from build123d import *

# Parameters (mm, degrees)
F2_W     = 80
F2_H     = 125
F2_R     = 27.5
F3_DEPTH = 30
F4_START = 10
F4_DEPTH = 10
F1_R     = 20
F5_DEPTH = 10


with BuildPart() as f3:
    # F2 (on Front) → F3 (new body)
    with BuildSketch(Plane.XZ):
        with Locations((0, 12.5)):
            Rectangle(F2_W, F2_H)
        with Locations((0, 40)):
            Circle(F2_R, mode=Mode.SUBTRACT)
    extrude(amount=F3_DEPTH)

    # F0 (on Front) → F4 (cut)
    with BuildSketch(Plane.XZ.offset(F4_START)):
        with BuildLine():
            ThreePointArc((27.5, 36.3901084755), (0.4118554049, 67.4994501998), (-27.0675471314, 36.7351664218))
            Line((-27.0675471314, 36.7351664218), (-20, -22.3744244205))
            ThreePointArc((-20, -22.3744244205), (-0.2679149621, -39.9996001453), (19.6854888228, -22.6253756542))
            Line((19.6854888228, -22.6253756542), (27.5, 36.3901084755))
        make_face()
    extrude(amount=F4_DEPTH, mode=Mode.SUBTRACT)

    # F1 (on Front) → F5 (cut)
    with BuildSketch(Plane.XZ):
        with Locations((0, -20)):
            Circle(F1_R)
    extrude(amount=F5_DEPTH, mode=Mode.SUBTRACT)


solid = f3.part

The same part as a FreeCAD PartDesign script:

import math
import FreeCAD as App
import Part
import Sketcher

V = App.Vector
Q = App.Units.Quantity

doc = App.newDocument("Part")
body = doc.addObject("PartDesign::Body", "Body")

# Sketch on XZ plane
sketch1 = doc.addObject("Sketcher::SketchObject", "Sketch")
body.addObject(sketch1)
sketch1.AttachmentSupport = (doc.XZ_Plane, [""])
sketch1.MapMode = "FlatFace"
sketch1.addGeometry([
    Part.LineSegment(V(-40, 75, 0), V(-40, -50, 0)),  # 0
    Part.LineSegment(V(-40, -50, 0), V(40, -50, 0)),  # 1
    Part.LineSegment(V(40, -50, 0), V(40, 75, 0)),  # 2
    Part.LineSegment(V(40, 75, 0), V(-40, 75, 0)),  # 3
    Part.Circle(V(0, 40, 0), V(0, 0, 1), 27.5),  # 4
], False)
sketch1.addConstraint([
    Sketcher.Constraint("Coincident", 0, 2, 1, 1),
    Sketcher.Constraint("Coincident", 1, 2, 2, 1),
    Sketcher.Constraint("Coincident", 2, 2, 3, 1),
    Sketcher.Constraint("Coincident", 3, 2, 0, 1),
    Sketcher.Constraint("Vertical", 0),
    Sketcher.Constraint("Horizontal", 1),
    Sketcher.Constraint("Vertical", 2),
    Sketcher.Constraint("Horizontal", 3),
    Sketcher.Constraint("PointOnObject", 4, 3, -2),
    Sketcher.Constraint("Diameter", 4, Q("55 mm")),
    Sketcher.Constraint("DistanceX", 1, 1, 1, 2, Q("80 mm")),
    Sketcher.Constraint("DistanceY", 0, 2, 0, 1, Q("125 mm")),
    Sketcher.Constraint("DistanceY", -1, 1, 4, 3, Q("40 mm")),
    Sketcher.Constraint("DistanceX", 0, 2, -1, 1, Q("40 mm")),
    Sketcher.Constraint("DistanceY", 0, 2, -1, 1, Q("50 mm")),
])
pad1 = doc.addObject("PartDesign::Pad", "Pad")
body.addObject(pad1)
pad1.Profile = sketch1
pad1.Length = 30

# Sketch on XZ plane
sketch2 = doc.addObject("Sketcher::SketchObject", "Sketch001")
body.addObject(sketch2)
sketch2.AttachmentSupport = (doc.XZ_Plane, [""])
sketch2.MapMode = "FlatFace"
sketch2.AttachmentOffset = App.Placement(V(0, 0, 10), App.Rotation())
sketch2.addGeometry([
    Part.ArcOfCircle(Part.Circle(V(0.237963, 40, 0), V(0, 0, 1), 27.5), math.radians(-7.542917), math.radians(186.818306)),
    Part.LineSegment(V(-27.067547, 36.735166, 0), V(-20, -22.374424, 0)),
    Part.ArcOfCircle(Part.Circle(V(-0.141447, -20, 0), V(0, 0, 1), 20), math.radians(-173.181694), math.radians(-7.542917)),
    Part.LineSegment(V(19.685489, -22.625376, 0), V(27.5, 36.390108, 0)),
], False)
sketch2.addConstraint([
    Sketcher.Constraint("Tangent", 0, 2, 1, 1),
    Sketcher.Constraint("Tangent", 1, 2, 2, 1),
    Sketcher.Constraint("Tangent", 2, 2, 3, 1),
    Sketcher.Constraint("Tangent", 3, 2, 0, 1),
    Sketcher.Constraint("Radius", 2, Q("20 mm")),
    Sketcher.Constraint("Radius", 0, Q("27.5 mm")),
    Sketcher.Constraint("DistanceY", -1, 1, 0, 3, Q("40 mm")),
    Sketcher.Constraint("DistanceY", 2, 3, -1, 1, Q("20 mm")),
    Sketcher.Constraint("DistanceX", 1, 2, -1, 1, Q("20 mm")),
    Sketcher.Constraint("DistanceX", -1, 1, 3, 2, Q("27.5 mm")),
])
pocket1 = doc.addObject("PartDesign::Pocket", "Pocket")
body.addObject(pocket1)
pocket1.Profile = sketch2
pocket1.Length = 10
pocket1.Reversed = True

# Sketch on XZ plane
sketch3 = doc.addObject("Sketcher::SketchObject", "Sketch002")
body.addObject(sketch3)
sketch3.AttachmentSupport = (doc.XZ_Plane, [""])
sketch3.MapMode = "FlatFace"
sketch3.addGeometry(Part.Circle(V(0, -20, 0), V(0, 0, 1), 20), False)
sketch3.addConstraint([
    Sketcher.Constraint("PointOnObject", 0, 3, -2),
    Sketcher.Constraint("Diameter", 0, Q("40 mm")),
    Sketcher.Constraint("DistanceY", 0, 3, -1, 1, Q("20 mm")),
])
pocket2 = doc.addObject("PartDesign::Pocket", "Pocket001")
body.addObject(pocket2)
pocket2.Profile = sketch3
pocket2.Length = 10
pocket2.Reversed = True

doc.recompute()
